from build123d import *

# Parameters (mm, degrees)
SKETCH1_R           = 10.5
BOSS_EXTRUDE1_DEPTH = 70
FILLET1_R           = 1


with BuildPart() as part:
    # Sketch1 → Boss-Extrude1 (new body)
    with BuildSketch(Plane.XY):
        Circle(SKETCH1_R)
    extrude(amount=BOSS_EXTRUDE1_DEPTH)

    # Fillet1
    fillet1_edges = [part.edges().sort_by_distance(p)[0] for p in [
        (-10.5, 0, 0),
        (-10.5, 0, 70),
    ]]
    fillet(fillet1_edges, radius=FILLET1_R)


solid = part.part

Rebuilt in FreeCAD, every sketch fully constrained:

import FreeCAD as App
import Part
import Sketcher
from FreeCAD import Vector


def edges_at(feature, points):
    """Names of the edges that pass closest to the given points."""
    edges = feature.Shape.Edges
    near = lambda p: min(range(len(edges)), key=lambda i: edges[i].distToShape(Part.Vertex(*p))[0])
    return sorted({f"Edge{near(p) + 1}" for p in points})

doc = App.newDocument("Part")
params = doc.addObject("Spreadsheet::Sheet", "Params")
for row, (alias, value) in enumerate([
    ("sketch1_diameter", "21 mm"),
    ("pad1_length", "70 mm"),
    ("fillet_radius", "1 mm"),
], start=1):
    params.set(f"A{row}", alias)
    params.set(f"B{row}", "=" + value)
    params.setAlias(f"B{row}", alias)

body = doc.addObject("PartDesign::Body", "Body")

sketch1 = body.newObject("Sketcher::SketchObject", "Sketch")
sketch1.AttachmentSupport = (doc.getObject("XY_Plane"), [""])
sketch1.MapMode = "FlatFace"
sketch1.addGeometry(Part.Circle(Vector(0, 0, 0), Vector(0, 0, 1), 10), False)
sketch1.addConstraint([
    Sketcher.Constraint("Coincident", 0, 3, -1, 1),
    Sketcher.Constraint("Diameter", 0, 21.0),
])
sketch1.setExpression("Constraints[1]", "Params.sketch1_diameter")
pad1 = body.newObject("PartDesign::Pad", "Pad")
pad1.Profile = sketch1
pad1.setExpression("Length", "Params.pad1_length")
doc.recompute()

fillet = body.newObject("PartDesign::Fillet", "Fillet")
fillet.Base = (pad1, edges_at(pad1, [(-10.5, 0, 0), (-10.5, 0, 70)]))
fillet.setExpression("Radius", "Params.fillet_radius")

doc.recompute()
